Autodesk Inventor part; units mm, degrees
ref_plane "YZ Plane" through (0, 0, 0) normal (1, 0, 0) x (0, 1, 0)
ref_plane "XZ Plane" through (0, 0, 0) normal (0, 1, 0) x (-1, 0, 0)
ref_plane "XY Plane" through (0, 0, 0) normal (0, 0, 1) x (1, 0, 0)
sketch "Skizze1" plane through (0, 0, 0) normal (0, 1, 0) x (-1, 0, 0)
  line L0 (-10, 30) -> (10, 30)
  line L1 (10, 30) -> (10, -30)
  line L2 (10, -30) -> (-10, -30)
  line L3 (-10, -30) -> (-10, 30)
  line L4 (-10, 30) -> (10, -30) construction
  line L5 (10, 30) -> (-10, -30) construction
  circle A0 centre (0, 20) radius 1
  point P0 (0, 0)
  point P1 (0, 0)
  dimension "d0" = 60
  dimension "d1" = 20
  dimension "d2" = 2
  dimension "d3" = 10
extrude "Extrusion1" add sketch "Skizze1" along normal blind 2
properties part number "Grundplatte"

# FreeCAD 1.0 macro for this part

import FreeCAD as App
import Part
import Sketcher
from FreeCAD import Vector


def add_polygon(sketch, points):
    """Adds a closed chain of lines whose ends are joined by coincident constraints."""
    first, n = sketch.GeometryCount, len(points)
    for a, b in zip(points, points[1:] + points[:1]):
        sketch.addGeometry(Part.LineSegment(App.Vector(*a, 0), App.Vector(*b, 0)), False)
    for i in range(n):
        sketch.addConstraint(Sketcher.Constraint("Coincident", first + i, 2, first + (i + 1) % n, 1))

doc = App.newDocument("Part")
params = doc.addObject("Spreadsheet::Sheet", "Params")
for row, (alias, value) in enumerate([
    ("sketch1_diameter", "2 mm"),
    ("sketch1_width", "20 mm"),
    ("sketch1_height", "60 mm"),
    ("pad1_length", "2 mm"),
], start=1):
    params.set(f"A{row}", alias)
    params.set(f"B{row}", "=" + value)
    params.setAlias(f"B{row}", alias)

body = doc.addObject("PartDesign::Body", "Body")

sketch1 = body.newObject("Sketcher::SketchObject", "Sketch")
sketch1.AttachmentSupport = (doc.getObject("XZ_Plane"), [""])
sketch1.MapMode = "FlatFace"
add_polygon(sketch1, [(-10, 30), (10, 30), (10, -30), (-10, -30)])
sketch1.addGeometry(Part.Circle(Vector(0, 20, 0), Vector(0, 0, 1), 1), False)
sketch1.addConstraint([
    Sketcher.Constraint("Horizontal", 0),
    Sketcher.Constraint("Vertical", 1),
    Sketcher.Constraint("Horizontal", 2),
    Sketcher.Constraint("Vertical", 3),
    Sketcher.Constraint("Symmetric", 0, 2, 2, 2, -1, 1),
    Sketcher.Constraint("PointOnObject", 4, 3, -2),
    Sketcher.Constraint("Diameter", 4, 2.0),
    Sketcher.Constraint("DistanceX", 0, 1, 0, 2, 20.0),
    Sketcher.Constraint("DistanceY", 1, 2, 1, 1, 60.0),
    Sketcher.Constraint("DistanceY", -1, 1, 4, 3, 20.0),
])
sketch1.setExpression("Constraints[10]", "Params.sketch1_diameter")
sketch1.setExpression("Constraints[11]", "Params.sketch1_width")
sketch1.setExpression("Constraints[12]", "Params.sketch1_height")
pad1 = body.newObject("PartDesign::Pad", "Pad")
pad1.Profile = sketch1
pad1.setExpression("Length", "Params.pad1_length")
pad1.Reversed = True

doc.recompute()
